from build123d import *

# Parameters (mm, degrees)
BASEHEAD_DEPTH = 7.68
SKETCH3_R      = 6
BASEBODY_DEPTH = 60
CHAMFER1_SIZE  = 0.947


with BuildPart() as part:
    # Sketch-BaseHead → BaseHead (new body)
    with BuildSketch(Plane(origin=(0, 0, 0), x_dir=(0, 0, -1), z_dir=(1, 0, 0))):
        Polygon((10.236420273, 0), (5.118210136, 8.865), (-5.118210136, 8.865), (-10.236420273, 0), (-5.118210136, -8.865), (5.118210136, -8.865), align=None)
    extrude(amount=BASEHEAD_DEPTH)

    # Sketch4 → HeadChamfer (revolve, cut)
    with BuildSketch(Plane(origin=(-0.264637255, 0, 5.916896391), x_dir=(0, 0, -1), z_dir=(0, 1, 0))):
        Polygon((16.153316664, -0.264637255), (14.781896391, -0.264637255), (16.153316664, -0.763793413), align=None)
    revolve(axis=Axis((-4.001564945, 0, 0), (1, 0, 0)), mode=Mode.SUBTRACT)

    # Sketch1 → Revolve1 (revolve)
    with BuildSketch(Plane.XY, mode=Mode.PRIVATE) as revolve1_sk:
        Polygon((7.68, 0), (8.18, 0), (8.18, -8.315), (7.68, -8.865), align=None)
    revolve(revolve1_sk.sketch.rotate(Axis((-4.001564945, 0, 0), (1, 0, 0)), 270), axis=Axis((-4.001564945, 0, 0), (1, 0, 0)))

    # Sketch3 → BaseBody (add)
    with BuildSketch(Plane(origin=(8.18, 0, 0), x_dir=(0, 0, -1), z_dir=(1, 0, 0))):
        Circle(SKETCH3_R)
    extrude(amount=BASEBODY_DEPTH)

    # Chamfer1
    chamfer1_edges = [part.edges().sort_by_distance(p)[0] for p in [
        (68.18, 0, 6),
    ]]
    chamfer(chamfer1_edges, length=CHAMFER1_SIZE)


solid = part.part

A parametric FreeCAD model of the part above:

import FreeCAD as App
import Part
import Sketcher

V = App.Vector
Q = App.Units.Quantity


def edges_at(feature, points):
    """Names of the edges that pass closest to the given points."""
    edges = feature.Shape.Edges
    near = lambda p: min(range(len(edges)), key=lambda i: edges[i].distToShape(Part.Vertex(*p))[0])
    return sorted({f"Edge{near(p) + 1}" for p in points})


def add_polygon(sketch, points):
    """Adds a closed chain of lines whose ends are joined by coincident constraints."""
    first, n = sketch.GeometryCount, len(points)
    for a, b in zip(points, points[1:] + points[:1]):
        sketch.addGeometry(Part.LineSegment(App.Vector(*a, 0), App.Vector(*b, 0)), False)
    for i in range(n):
        sketch.addConstraint(Sketcher.Constraint("Coincident", first + i, 2, first + (i + 1) % n, 1))

doc = App.newDocument("Part")
body = doc.addObject("PartDesign::Body", "Body")

sketch1 = body.newObject("Sketcher::SketchObject", "Sketch")
sketch1.AttachmentSupport = (doc.getObject("YZ_Plane"), [""])
sketch1.MapMode = "FlatFace"
add_polygon(sketch1, [(0, -10), (9, -5), (9, 5), (0, 10), (-9, 5), (-9, -5)])
sketch1.addConstraint(Sketcher.Constraint("Vertical", 1))
sketch1.addConstraint(Sketcher.Constraint("Vertical", 4))
sketch1.addConstraint(Sketcher.Constraint("Symmetric", 0, 2, 3, 2, -1, 1))
sketch1.addConstraint(Sketcher.Constraint("Symmetric", 2, 2, 5, 2, -1, 1))
sketch1.addConstraint(Sketcher.Constraint("PointOnObject", 2, 2, -2))
sketch1.addConstraint(Sketcher.Constraint("Parallel", 2, 5))
sketch1.addConstraint(Sketcher.Constraint("Horizontal", 1, 2, 3, 2))
sketch1.addConstraint(Sketcher.Constraint("Angle", 0, Q("30 deg")))
sketch1.addConstraint(Sketcher.Constraint("DistanceX", 3, 2, 1, 2, Q("17.73 mm")))
sketch1.addConstraint(Sketcher.Constraint("DistanceY", 1, 1, 1, 2, Q("10.23642 mm")))
pad1 = body.newObject("PartDesign::Pad", "Pad")
pad1.Profile = sketch1
pad1.Length = 7.68

sketch2 = body.newObject("Sketcher::SketchObject", "Sketch001")
sketch2.AttachmentSupport = (doc.getObject("XZ_Plane"), [""])
sketch2.MapMode = "FlatFace"
add_polygon(sketch2, [(0, -10.24), (0, -8.87), (0.5, -10.24)])
sketch2.addConstraint(Sketcher.Constraint("Vertical", 0))
sketch2.addConstraint(Sketcher.Constraint("Horizontal", 2))
sketch2.addConstraint(Sketcher.Constraint("PointOnObject", 0, 2, -2))
sketch2.addConstraint(Sketcher.Constraint("Angle", 1, Q("-70 deg")))
sketch2.addConstraint(Sketcher.Constraint("DistanceY", 0, 2, -1, 1, Q("8.865 mm")))
sketch2.addConstraint(Sketcher.Constraint("DistanceY", 0, 1, 0, 2, Q("1.37142 mm")))
groove = body.newObject("PartDesign::Groove", "Groove")
groove.Profile = sketch2
groove.ReferenceAxis = (sketch2, ["H_Axis"])
groove.Angle = 360

sketch3 = body.newObject("Sketcher::SketchObject", "Sketch002")
sketch3.AttachmentSupport = (doc.getObject("XY_Plane"), [""])
sketch3.MapMode = "FlatFace"
add_polygon(sketch3, [(8.2, 0), (7.7, 0), (7.7, -8.9), (8.2, -8.3)])
sketch3.addConstraint(Sketcher.Constraint("Horizontal", 0))
sketch3.addConstraint(Sketcher.Constraint("Vertical", 1))
sketch3.addConstraint(Sketcher.Constraint("Vertical", 3))
sketch3.addConstraint(Sketcher.Constraint("PointOnObject", 0, 2, -1))
sketch3.addConstraint(Sketcher.Constraint("DistanceX", 0, 2, 0, 1, Q("0.5 mm")))
sketch3.addConstraint(Sketcher.Constraint("DistanceY", 1, 2, 1, 1, Q("8.865 mm")))
sketch3.addConstraint(Sketcher.Constraint("DistanceY", 3, 1, 3, 2, Q("8.315 mm")))
sketch3.addConstraint(Sketcher.Constraint("DistanceX", -1, 1, 0, 2, Q("7.68 mm")))
revolution = body.newObject("PartDesign::Revolution", "Revolution")
revolution.Profile = sketch3
revolution.ReferenceAxis = (sketch3, ["H_Axis"])
revolution.Angle = 360

sketch4 = body.newObject("Sketcher::SketchObject", "Sketch003")
sketch4.AttachmentSupport = (doc.getObject("YZ_Plane"), [""])
sketch4.MapMode = "FlatFace"
sketch4.AttachmentOffset = App.Placement(V(0, 0, 8.18), App.Rotation())
sketch4.addGeometry(Part.Circle(V(0, 0, 0), V(0, 0, 1), 6), False)
sketch4.addConstraint(Sketcher.Constraint("Coincident", 0, 3, -1, 1))
sketch4.addConstraint(Sketcher.Constraint("Diameter", 0, Q("12 mm")))
pad2 = body.newObject("PartDesign::Pad", "Pad001")
pad2.Profile = sketch4
pad2.Length = 60
doc.recompute()

chamfer = body.newObject("PartDesign::Chamfer", "Chamfer")
chamfer.Base = (pad2, edges_at(pad2, [(68.18, 0, 6)]))
chamfer.Size = 0.947

doc.recompute()
